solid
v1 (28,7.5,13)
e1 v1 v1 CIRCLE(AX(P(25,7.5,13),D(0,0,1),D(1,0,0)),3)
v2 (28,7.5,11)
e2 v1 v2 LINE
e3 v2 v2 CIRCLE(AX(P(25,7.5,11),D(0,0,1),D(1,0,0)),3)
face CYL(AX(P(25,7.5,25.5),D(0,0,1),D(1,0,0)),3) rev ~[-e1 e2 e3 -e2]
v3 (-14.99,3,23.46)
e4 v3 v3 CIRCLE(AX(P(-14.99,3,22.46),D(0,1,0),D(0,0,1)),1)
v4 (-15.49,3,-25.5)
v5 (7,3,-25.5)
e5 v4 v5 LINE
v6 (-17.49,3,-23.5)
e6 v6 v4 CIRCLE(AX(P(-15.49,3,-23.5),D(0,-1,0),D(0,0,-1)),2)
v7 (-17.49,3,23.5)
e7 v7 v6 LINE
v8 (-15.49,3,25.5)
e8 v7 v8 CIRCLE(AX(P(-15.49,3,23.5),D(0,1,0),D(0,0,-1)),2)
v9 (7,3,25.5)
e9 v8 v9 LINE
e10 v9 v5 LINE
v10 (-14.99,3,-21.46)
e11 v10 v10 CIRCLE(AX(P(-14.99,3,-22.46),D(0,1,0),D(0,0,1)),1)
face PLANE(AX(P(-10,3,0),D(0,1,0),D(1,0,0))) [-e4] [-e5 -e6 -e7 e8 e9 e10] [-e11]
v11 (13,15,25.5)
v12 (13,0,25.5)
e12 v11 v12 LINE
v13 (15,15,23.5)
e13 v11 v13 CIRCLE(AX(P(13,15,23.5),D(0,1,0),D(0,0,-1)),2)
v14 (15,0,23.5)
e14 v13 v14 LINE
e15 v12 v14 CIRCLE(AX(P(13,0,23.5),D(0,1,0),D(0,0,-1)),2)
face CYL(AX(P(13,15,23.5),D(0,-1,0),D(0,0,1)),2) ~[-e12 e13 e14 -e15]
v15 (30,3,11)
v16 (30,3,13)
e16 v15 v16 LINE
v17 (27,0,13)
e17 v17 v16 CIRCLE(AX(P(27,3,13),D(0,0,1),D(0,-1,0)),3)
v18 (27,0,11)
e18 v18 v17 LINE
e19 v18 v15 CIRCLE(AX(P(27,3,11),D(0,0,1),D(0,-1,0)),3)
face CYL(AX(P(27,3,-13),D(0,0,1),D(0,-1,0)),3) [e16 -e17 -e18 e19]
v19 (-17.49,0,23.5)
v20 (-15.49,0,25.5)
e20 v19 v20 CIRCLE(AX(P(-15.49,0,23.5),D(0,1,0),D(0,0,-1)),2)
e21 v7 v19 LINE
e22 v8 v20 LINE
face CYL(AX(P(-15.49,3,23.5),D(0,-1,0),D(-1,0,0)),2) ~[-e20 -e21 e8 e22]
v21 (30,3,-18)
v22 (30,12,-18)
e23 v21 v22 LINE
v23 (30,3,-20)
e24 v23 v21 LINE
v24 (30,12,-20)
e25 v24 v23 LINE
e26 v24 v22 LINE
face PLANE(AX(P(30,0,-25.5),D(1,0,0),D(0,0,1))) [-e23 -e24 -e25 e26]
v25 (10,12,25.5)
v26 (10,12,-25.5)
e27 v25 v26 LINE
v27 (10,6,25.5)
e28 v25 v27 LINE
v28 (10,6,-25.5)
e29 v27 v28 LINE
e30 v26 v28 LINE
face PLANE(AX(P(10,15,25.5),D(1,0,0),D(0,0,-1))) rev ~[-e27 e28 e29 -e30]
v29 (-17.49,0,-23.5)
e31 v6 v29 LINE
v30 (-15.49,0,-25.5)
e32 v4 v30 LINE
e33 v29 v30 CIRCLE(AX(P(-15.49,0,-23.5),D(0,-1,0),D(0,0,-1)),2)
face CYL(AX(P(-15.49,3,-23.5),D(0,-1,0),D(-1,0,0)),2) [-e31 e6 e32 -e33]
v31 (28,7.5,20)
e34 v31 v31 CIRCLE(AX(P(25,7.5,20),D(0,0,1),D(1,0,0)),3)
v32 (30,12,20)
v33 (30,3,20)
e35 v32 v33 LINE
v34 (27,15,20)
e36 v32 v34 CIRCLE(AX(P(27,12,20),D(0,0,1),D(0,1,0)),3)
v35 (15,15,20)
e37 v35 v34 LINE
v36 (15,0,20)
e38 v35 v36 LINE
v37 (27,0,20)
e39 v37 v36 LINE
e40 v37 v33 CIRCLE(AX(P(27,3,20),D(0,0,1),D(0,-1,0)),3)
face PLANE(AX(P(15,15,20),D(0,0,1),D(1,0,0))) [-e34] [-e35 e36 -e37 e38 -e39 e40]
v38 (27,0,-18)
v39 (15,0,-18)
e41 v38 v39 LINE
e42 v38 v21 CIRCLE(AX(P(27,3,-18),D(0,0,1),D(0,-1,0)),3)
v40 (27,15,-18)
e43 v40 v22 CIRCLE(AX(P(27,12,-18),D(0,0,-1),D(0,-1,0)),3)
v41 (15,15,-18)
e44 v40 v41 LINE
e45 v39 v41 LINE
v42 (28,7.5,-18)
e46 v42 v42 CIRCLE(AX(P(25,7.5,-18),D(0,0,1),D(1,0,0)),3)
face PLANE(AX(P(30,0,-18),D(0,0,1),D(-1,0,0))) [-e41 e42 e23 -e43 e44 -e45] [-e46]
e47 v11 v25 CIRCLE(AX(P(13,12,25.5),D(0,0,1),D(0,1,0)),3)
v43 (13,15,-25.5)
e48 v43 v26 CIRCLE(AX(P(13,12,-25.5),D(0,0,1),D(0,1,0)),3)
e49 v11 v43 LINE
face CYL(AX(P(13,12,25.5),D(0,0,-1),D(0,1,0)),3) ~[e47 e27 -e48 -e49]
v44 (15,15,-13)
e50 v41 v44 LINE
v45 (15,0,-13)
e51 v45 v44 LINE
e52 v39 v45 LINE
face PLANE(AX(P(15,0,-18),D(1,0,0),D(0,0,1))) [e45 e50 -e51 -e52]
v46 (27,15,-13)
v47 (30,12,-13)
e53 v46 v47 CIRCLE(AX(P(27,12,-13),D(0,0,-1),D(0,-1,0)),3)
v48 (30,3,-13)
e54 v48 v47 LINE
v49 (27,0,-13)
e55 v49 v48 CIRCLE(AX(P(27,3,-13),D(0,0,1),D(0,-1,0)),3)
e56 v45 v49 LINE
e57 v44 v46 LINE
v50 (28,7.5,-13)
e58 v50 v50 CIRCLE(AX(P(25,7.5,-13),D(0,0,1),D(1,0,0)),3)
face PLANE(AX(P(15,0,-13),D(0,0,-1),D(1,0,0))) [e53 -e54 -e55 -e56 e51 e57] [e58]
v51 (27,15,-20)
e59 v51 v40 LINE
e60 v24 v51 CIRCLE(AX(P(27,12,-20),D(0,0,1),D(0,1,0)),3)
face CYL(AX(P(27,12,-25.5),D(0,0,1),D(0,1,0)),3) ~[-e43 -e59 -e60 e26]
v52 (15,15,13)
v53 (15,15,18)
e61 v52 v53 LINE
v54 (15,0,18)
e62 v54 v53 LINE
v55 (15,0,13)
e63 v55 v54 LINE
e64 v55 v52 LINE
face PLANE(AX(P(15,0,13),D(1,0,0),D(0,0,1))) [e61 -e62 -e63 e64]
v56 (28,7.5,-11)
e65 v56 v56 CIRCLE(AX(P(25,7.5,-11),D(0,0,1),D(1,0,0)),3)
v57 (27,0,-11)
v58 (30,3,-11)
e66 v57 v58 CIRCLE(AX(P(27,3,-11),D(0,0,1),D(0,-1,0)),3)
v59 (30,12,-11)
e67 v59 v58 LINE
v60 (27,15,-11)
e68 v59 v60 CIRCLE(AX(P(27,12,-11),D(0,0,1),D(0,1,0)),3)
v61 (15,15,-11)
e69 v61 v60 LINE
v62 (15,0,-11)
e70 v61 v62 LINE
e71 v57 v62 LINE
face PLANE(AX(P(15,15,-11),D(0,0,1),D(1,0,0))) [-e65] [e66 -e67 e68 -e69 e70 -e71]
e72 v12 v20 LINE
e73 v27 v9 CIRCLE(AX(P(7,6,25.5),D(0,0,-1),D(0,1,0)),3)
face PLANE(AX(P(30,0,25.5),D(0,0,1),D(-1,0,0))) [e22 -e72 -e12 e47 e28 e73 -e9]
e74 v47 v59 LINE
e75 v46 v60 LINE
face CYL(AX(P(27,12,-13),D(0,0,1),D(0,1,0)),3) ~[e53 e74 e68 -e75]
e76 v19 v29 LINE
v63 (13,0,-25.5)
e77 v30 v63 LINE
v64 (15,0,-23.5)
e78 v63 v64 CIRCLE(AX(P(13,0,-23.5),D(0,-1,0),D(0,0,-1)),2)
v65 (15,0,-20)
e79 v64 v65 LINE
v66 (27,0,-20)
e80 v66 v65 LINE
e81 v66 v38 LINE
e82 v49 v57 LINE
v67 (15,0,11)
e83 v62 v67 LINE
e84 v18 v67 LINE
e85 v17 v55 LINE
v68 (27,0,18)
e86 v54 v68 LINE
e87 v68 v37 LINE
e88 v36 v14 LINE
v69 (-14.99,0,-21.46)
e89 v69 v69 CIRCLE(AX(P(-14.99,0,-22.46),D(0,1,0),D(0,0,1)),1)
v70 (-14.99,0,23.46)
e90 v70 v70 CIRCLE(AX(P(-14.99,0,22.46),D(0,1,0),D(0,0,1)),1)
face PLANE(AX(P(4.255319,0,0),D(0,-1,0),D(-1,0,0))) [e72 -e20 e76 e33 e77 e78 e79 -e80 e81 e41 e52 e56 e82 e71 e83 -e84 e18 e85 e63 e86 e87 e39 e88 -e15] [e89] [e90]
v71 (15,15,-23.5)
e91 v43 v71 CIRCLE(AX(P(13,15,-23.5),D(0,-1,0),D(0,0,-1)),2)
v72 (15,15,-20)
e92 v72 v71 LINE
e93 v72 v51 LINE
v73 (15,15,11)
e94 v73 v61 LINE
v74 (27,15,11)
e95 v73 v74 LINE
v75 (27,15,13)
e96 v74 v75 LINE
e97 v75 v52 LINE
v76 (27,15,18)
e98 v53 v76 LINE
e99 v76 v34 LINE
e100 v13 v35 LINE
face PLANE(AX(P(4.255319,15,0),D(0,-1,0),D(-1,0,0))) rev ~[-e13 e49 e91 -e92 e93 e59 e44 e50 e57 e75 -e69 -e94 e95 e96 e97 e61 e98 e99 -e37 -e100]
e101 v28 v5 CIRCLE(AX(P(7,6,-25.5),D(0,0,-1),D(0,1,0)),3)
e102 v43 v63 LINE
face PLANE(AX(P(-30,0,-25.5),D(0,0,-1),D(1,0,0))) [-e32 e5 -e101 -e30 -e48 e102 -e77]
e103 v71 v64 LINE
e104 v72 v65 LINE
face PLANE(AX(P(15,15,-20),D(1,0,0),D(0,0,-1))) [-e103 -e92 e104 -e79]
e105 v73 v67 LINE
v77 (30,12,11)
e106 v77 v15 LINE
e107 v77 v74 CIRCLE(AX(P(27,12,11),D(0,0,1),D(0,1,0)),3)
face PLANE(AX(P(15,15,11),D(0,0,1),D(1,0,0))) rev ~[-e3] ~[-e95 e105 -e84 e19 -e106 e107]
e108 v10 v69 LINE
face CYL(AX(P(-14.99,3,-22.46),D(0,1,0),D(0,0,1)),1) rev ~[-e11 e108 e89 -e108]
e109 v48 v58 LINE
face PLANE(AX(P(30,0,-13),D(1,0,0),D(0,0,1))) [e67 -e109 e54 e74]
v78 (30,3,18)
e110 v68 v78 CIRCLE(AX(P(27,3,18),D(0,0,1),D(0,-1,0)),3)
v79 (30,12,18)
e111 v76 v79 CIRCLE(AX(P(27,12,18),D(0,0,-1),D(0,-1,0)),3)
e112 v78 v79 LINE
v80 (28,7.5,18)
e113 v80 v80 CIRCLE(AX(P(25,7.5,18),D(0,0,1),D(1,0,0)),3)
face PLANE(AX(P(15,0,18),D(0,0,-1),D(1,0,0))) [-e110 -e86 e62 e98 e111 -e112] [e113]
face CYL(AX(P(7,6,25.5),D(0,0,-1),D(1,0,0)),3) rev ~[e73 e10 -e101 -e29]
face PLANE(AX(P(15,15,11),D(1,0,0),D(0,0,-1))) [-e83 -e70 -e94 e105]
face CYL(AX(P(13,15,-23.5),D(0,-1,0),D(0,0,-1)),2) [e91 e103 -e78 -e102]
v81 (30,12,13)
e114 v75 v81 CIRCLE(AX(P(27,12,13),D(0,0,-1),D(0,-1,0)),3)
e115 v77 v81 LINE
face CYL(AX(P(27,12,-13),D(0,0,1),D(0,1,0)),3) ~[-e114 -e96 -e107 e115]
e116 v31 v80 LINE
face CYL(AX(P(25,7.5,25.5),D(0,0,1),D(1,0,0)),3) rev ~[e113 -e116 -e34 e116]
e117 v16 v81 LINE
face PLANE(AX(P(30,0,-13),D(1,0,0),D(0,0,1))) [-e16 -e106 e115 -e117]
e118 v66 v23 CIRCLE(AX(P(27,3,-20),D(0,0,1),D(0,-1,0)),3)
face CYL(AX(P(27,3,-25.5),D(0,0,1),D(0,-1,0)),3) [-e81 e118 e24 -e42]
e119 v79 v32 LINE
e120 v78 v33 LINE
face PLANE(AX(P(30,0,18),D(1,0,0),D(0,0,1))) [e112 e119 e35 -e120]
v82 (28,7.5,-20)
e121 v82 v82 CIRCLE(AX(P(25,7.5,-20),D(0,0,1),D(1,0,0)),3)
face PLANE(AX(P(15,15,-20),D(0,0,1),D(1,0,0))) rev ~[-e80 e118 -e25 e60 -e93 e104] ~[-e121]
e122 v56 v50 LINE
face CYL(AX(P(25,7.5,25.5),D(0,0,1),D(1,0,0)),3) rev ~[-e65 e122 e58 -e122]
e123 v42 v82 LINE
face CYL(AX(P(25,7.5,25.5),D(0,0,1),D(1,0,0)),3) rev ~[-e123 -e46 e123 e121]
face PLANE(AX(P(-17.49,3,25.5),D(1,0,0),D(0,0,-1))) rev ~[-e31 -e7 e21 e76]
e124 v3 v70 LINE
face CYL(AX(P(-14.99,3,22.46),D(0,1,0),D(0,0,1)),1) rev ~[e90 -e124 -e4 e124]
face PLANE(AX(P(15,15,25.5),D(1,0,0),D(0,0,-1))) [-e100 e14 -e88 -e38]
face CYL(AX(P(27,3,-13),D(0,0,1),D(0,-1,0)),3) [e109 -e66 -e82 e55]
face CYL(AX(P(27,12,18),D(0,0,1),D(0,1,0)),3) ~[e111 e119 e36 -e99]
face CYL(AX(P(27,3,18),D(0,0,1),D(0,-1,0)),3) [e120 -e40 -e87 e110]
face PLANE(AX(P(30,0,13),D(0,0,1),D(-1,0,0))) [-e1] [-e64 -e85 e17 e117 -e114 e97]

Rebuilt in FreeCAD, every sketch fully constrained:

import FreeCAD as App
import Part
import Sketcher

V = App.Vector


def edges_at(feature, points):
    """Names of the edges that pass closest to the given points."""
    edges = feature.Shape.Edges
    near = lambda p: min(range(len(edges)), key=lambda i: edges[i].distToShape(Part.Vertex(*p))[0])
    return sorted({f"Edge{near(p) + 1}" for p in points})


def add_polygon(sketch, points):
    """Adds a closed chain of lines whose ends are joined by coincident constraints."""
    first, n = sketch.GeometryCount, len(points)
    for a, b in zip(points, points[1:] + points[:1]):
        sketch.addGeometry(Part.LineSegment(App.Vector(*a, 0), App.Vector(*b, 0)), False)
    for i in range(n):
        sketch.addConstraint(Sketcher.Constraint("Coincident", first + i, 2, first + (i + 1) % n, 1))

doc = App.newDocument("Part")
body = doc.addObject("PartDesign::Body", "Body")

# Sketch on XZ plane
sketch1 = body.newObject("Sketcher::SketchObject", "Sketch")
sketch1.AttachmentSupport = (doc.getObject("XZ_Plane"), [""])
sketch1.MapMode = "FlatFace"
add_polygon(sketch1, [(30, -25.5), (-30, -25.5), (-30, 25.5), (30, 25.5), (30, 18), (15, 18), (15, 13), (30, 13), (30, -13), (15, -13), (15, -18), (30, -18)])  # lines 0-11
sketch1.addConstraint([
    Sketcher.Constraint("Horizontal", 0),
    Sketcher.Constraint("Vertical", 1),
    Sketcher.Constraint("Horizontal", 2),
    Sketcher.Constraint("Vertical", 3),
    Sketcher.Constraint("Horizontal", 4),
    Sketcher.Constraint("Vertical", 5),
    Sketcher.Constraint("Horizontal", 6),
    Sketcher.Constraint("Vertical", 7),
    Sketcher.Constraint("Horizontal", 8),
    Sketcher.Constraint("Vertical", 9),
    Sketcher.Constraint("Horizontal", 10),
    Sketcher.Constraint("Vertical", 11),
    Sketcher.Constraint("Symmetric", 0, 2, 2, 2, -1, 1),
    Sketcher.Constraint("Symmetric", 5, 2, 8, 2, -1),
    Sketcher.Constraint("Symmetric", 3, 2, 10, 2, -1),
    Sketcher.Constraint("Vertical", 3, 2, 6, 2),
    Sketcher.Constraint("DistanceX", 0, 2, 0, 1, 60.0),
    Sketcher.Constraint("DistanceX", 4, 2, 4, 1, 15.0),
    Sketcher.Constraint("DistanceY", 1, 1, 1, 2, 51.0),
    Sketcher.Constraint("DistanceY", 5, 2, 5, 1, 5.0),
    Sketcher.Constraint("DistanceY", 7, 2, 7, 1, 26.0),
])
pad1 = body.newObject("PartDesign::Pad", "Pad")
pad1.Profile = sketch1
pad1.Length = 15
pad1.Reversed = True

# Sketch on XY plane
sketch2 = body.newObject("Sketcher::SketchObject", "Sketch001")
sketch2.AttachmentSupport = (doc.getObject("XY_Plane"), [""])
sketch2.MapMode = "FlatFace"
sketch2.AttachmentOffset = App.Placement(V(0, 0, 25.5), App.Rotation())
sketch2.addGeometry(Part.Circle(V(25, 7.5, 0), V(0, 0, 1), 3), False)
sketch2.addConstraint([
    Sketcher.Constraint("Diameter", 0, 6.0),
    Sketcher.Constraint("DistanceX", -1, 1, 0, 3, 25.0),
    Sketcher.Constraint("DistanceY", -1, 1, 0, 3, 7.5),
])
pocket1 = body.newObject("PartDesign::Pocket", "Pocket")
pocket1.Profile = sketch2
pocket1.Length = 51
doc.recompute()

fillet = body.newObject("PartDesign::Fillet", "Fillet")
fillet.Base = (pocket1, edges_at(pocket1, [(30, 15, 21.75)]))
fillet.Radius = 3
doc.recompute()

fillet2 = body.newObject("PartDesign::Fillet", "Fillet001")
fillet2.Base = (fillet, edges_at(fillet, [(30, 15, 0)]))
fillet2.Radius = 3
doc.recompute()

fillet3 = body.newObject("PartDesign::Fillet", "Fillet002")
fillet3.Base = (fillet2, edges_at(fillet2, [(30, 15, -21.75)]))
fillet3.Radius = 3
doc.recompute()

fillet4 = body.newObject("PartDesign::Fillet", "Fillet003")
fillet4.Base = (fillet3, edges_at(fillet3, [(30, 0, 21.75)]))
fillet4.Radius = 3
doc.recompute()

fillet5 = body.newObject("PartDesign::Fillet", "Fillet004")
fillet5.Base = (fillet4, edges_at(fillet4, [(30, 0, 0)]))
fillet5.Radius = 3
doc.recompute()

fillet6 = body.newObject("PartDesign::Fillet", "Fillet005")
fillet6.Base = (fillet5, edges_at(fillet5, [(30, 0, -21.75)]))
fillet6.Radius = 3

# Sketch on XZ plane
sketch3 = body.newObject("Sketcher::SketchObject", "Sketch002")
sketch3.AttachmentSupport = (doc.getObject("XZ_Plane"), [""])
sketch3.MapMode = "FlatFace"
sketch3.AttachmentOffset = App.Placement(V(0, 0, -15), App.Rotation())
add_polygon(sketch3, [(-30, -25.5), (-30, 25.5), (10, 25.5), (10, -25.5)])  # lines 0-3
sketch3.addConstraint([
    Sketcher.Constraint("Vertical", 0),
    Sketcher.Constraint("Horizontal", 1),
    Sketcher.Constraint("Vertical", 2),
    Sketcher.Constraint("Horizontal", 3),
    Sketcher.Constraint("DistanceX", 1, 1, 1, 2, 40.0),
    Sketcher.Constraint("DistanceY", 0, 1, 0, 2, 51.0),
    Sketcher.Constraint("DistanceX", 0, 2, -1, 1, 30.0),
    Sketcher.Constraint("DistanceY", -1, 1, 0, 2, 25.5),
])
pocket2 = body.newObject("PartDesign::Pocket", "Pocket001")
pocket2.Profile = sketch3
pocket2.Length = 12
pocket2.Reversed = True

# Sketch on XZ plane
sketch4 = body.newObject("Sketcher::SketchObject", "Sketch003")
sketch4.AttachmentSupport = (doc.getObject("XZ_Plane"), [""])
sketch4.MapMode = "FlatFace"
sketch4.AttachmentOffset = App.Placement(V(0, 0, -3), App.Rotation())
sketch4.addGeometry([
    Part.Circle(V(-14.99, -22.46, 0), V(0, 0, 1), 1),
    Part.Circle(V(-14.99, 22.46, 0), V(0, 0, 1), 1),
], False)
sketch4.addConstraint([
    Sketcher.Constraint("Equal", 0, 1),
    Sketcher.Constraint("Symmetric", 0, 3, 1, 3, -1),
    Sketcher.Constraint("Diameter", 0, 2.0),
    Sketcher.Constraint("DistanceX", 0, 3, -1, 1, 14.99),
    Sketcher.Constraint("DistanceY", 0, 3, -1, 1, 22.46),
])
pocket3 = body.newObject("PartDesign::Pocket", "Pocket002")
pocket3.Profile = sketch4
pocket3.Length = 12
pocket3.Reversed = True
doc.recompute()

fillet7 = body.newObject("PartDesign::Fillet", "Fillet006")
fillet7.Base = (pocket3, edges_at(pocket3, [(10, 15, 0)]))
fillet7.Radius = 3
doc.recompute()

fillet8 = body.newObject("PartDesign::Fillet", "Fillet007")
fillet8.Base = (fillet7, edges_at(fillet7, [(10, 3, 0)]))
fillet8.Radius = 3

# Sketch on XZ plane
sketch5 = body.newObject("Sketcher::SketchObject", "Sketch004")
sketch5.AttachmentSupport = (doc.getObject("XZ_Plane"), [""])
sketch5.MapMode = "FlatFace"
sketch5.AttachmentOffset = App.Placement(V(0, 0, -15), App.Rotation())
add_polygon(sketch5, [(15, -11), (15, 11), (30, 11), (30, -11)])  # lines 0-3
sketch5.addConstraint([
    Sketcher.Constraint("Vertical", 0),
    Sketcher.Constraint("Horizontal", 1),
    Sketcher.Constraint("Vertical", 2),
    Sketcher.Constraint("Horizontal", 3),
    Sketcher.Constraint("DistanceX", 1, 1, 1, 2, 15.0),
    Sketcher.Constraint("DistanceY", 0, 1, 0, 2, 22.0),
    Sketcher.Constraint("DistanceX", -1, 1, 0, 2, 15.0),
    Sketcher.Constraint("DistanceY", -1, 1, 0, 2, 11.0),
])
pocket4 = body.newObject("PartDesign::Pocket", "Pocket003")
pocket4.Profile = sketch5
pocket4.Length = 20
pocket4.Reversed = True

# Sketch on XZ plane
sketch6 = body.newObject("Sketcher::SketchObject", "Sketch005")
sketch6.AttachmentSupport = (doc.getObject("XZ_Plane"), [""])
sketch6.MapMode = "FlatFace"
sketch6.AttachmentOffset = App.Placement(V(0, 0, -15), App.Rotation())
add_polygon(sketch6, [(15, -25.5), (15, -20), (30, -20), (30, -25.5)])  # lines 0-3
add_polygon(sketch6, [(15, 20), (15, 25.5), (30, 25.5), (30, 20)])  # lines 4-7
sketch6.addConstraint([
    Sketcher.Constraint("Vertical", 0),
    Sketcher.Constraint("Horizontal", 1),
    Sketcher.Constraint("Vertical", 2),
    Sketcher.Constraint("Horizontal", 3),
    Sketcher.Constraint("Vertical", 4),
    Sketcher.Constraint("Horizontal", 5),
    Sketcher.Constraint("Vertical", 6),
    Sketcher.Constraint("Horizontal", 7),
    Sketcher.Constraint("Symmetric", 3, 2, 4, 2, -1),
    Sketcher.Constraint("Symmetric", 1, 2, 6, 2, -1),
    Sketcher.Constraint("DistanceX", 1, 1, 1, 2, 15.0),
    Sketcher.Constraint("DistanceY", 0, 1, 0, 2, 5.5),
    Sketcher.Constraint("DistanceX", -1, 1, 0, 2, 15.0),
    Sketcher.Constraint("DistanceY", 0, 2, -1, 1, 20.0),
])
pocket5 = body.newObject("PartDesign::Pocket", "Pocket004")
pocket5.Profile = sketch6
pocket5.Length = 20
pocket5.Reversed = True
doc.recompute()

fillet9 = body.newObject("PartDesign::Fillet", "Fillet008")
fillet9.Base = (pocket5, edges_at(pocket5, [(15, 7.5, 25.5)]))
fillet9.Radius = 2
doc.recompute()

fillet10 = body.newObject("PartDesign::Fillet", "Fillet009")
fillet10.Base = (fillet9, edges_at(fillet9, [(15, 7.5, -25.5)]))
fillet10.Radius = 2

# Sketch on XZ plane
sketch7 = body.newObject("Sketcher::SketchObject", "Sketch006")
sketch7.AttachmentSupport = (doc.getObject("XZ_Plane"), [""])
sketch7.MapMode = "FlatFace"
sketch7.AttachmentOffset = App.Placement(V(0, 0, -3), App.Rotation())
add_polygon(sketch7, [(-30, -25.5), (-30, 25.5), (-17.49, 25.5), (-17.49, -25.5)])  # lines 0-3
sketch7.addConstraint([
    Sketcher.Constraint("Vertical", 0),
    Sketcher.Constraint("Horizontal", 1),
    Sketcher.Constraint("Vertical", 2),
    Sketcher.Constraint("Horizontal", 3),
    Sketcher.Constraint("DistanceY", 0, 1, 0, 2, 51.0),
    Sketcher.Constraint("DistanceX", 0, 2, -1, 1, 30.0),
    Sketcher.Constraint("DistanceX", 1, 1, 1, 2, 12.51),
    Sketcher.Constraint("DistanceY", -1, 1, 0, 2, 25.5),
])
pocket6 = body.newObject("PartDesign::Pocket", "Pocket005")
pocket6.Profile = sketch7
pocket6.Length = 3
pocket6.Reversed = True
doc.recompute()

fillet11 = body.newObject("PartDesign::Fillet", "Fillet010")
fillet11.Base = (pocket6, edges_at(pocket6, [(-17.49, 1.5, 25.5)]))
fillet11.Radius = 2
doc.recompute()

fillet12 = body.newObject("PartDesign::Fillet", "Fillet011")
fillet12.Base = (fillet11, edges_at(fillet11, [(-17.49, 1.5, -25.5)]))
fillet12.Radius = 2

doc.recompute()
